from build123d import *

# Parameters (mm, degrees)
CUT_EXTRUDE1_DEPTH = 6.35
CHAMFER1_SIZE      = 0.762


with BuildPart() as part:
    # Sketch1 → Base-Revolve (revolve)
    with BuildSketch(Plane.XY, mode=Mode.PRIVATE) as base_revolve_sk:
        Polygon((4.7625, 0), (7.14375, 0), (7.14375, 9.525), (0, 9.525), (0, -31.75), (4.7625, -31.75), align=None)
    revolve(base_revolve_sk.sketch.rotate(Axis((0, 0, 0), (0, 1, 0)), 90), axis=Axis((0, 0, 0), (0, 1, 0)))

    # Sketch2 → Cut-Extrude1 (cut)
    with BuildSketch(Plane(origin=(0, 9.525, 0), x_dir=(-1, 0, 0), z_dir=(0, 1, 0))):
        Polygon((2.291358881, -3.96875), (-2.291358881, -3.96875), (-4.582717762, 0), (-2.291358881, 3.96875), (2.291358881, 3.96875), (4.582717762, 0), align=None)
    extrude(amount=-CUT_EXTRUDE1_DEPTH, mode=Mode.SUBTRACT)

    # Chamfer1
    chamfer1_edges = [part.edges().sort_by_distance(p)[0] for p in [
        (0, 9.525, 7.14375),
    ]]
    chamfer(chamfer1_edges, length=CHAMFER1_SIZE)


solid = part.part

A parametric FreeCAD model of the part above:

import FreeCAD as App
import Part
import Sketcher
Q = App.Units.Quantity


def edges_at(feature, points):
    """Names of the edges that pass closest to the given points."""
    edges = feature.Shape.Edges
    near = lambda p: min(range(len(edges)), key=lambda i: edges[i].distToShape(Part.Vertex(*p))[0])
    return sorted({f"Edge{near(p) + 1}" for p in points})

doc = App.newDocument("Part")
body = doc.addObject("PartDesign::Body", "Body")

# Sketch on XY plane
sketch1 = body.newObject("Sketcher::SketchObject", "Sketch")
sketch1.AttachmentSupport = (doc.getObject("XY_Plane"), [""])
sketch1.MapMode = "FlatFace"
sketch1.addGeometry(Part.LineSegment(App.Vector(4.8, 0, 0), App.Vector(7.1, 0, 0)), False)
sketch1.addGeometry(Part.LineSegment(App.Vector(7.1, 0, 0), App.Vector(7.1, 9.5, 0)), False)
sketch1.addGeometry(Part.LineSegment(App.Vector(7.1, 9.5, 0), App.Vector(0, 9.5, 0)), False)
sketch1.addGeometry(Part.LineSegment(App.Vector(0, 9.5, 0), App.Vector(0, -31.8, 0)), False)
sketch1.addGeometry(Part.LineSegment(App.Vector(0, -31.8, 0), App.Vector(4.8, -31.8, 0)), False)
sketch1.addGeometry(Part.LineSegment(App.Vector(4.8, -31.8, 0), App.Vector(4.8, 0, 0)), False)
sketch1.addConstraint(Sketcher.Constraint("Coincident", 0, 2, 1, 1))
sketch1.addConstraint(Sketcher.Constraint("Coincident", 1, 2, 2, 1))
sketch1.addConstraint(Sketcher.Constraint("Coincident", 2, 2, 3, 1))
sketch1.addConstraint(Sketcher.Constraint("Coincident", 3, 2, 4, 1))
sketch1.addConstraint(Sketcher.Constraint("Coincident", 4, 2, 5, 1))
sketch1.addConstraint(Sketcher.Constraint("Coincident", 5, 2, 0, 1))
sketch1.addConstraint(Sketcher.Constraint("Horizontal", 0))
sketch1.addConstraint(Sketcher.Constraint("Vertical", 1))
sketch1.addConstraint(Sketcher.Constraint("Horizontal", 2))
sketch1.addConstraint(Sketcher.Constraint("Vertical", 3))
sketch1.addConstraint(Sketcher.Constraint("Horizontal", 4))
sketch1.addConstraint(Sketcher.Constraint("Vertical", 5))
sketch1.addConstraint(Sketcher.Constraint("PointOnObject", 0, 2, -1))
sketch1.addConstraint(Sketcher.Constraint("PointOnObject", 2, 2, -2))
sketch1.addConstraint(Sketcher.Constraint("DistanceY", 5, 1, 5, 2, Q("1.25 in")))
sketch1.addConstraint(Sketcher.Constraint("DistanceX", 0, 1, 0, 2, Q("0.09375 in")))
sketch1.addConstraint(Sketcher.Constraint("DistanceX", 2, 2, 2, 1, Q("0.28125 in")))
sketch1.addConstraint(Sketcher.Constraint("DistanceY", 1, 1, 1, 2, Q("0.375 in")))
revolution = body.newObject("PartDesign::Revolution", "Revolution")
revolution.Profile = sketch1
revolution.ReferenceAxis = (sketch1, ["V_Axis"])
revolution.Angle = 360

# Sketch on XZ plane
sketch2 = body.newObject("Sketcher::SketchObject", "Sketch001")
sketch2.AttachmentSupport = (doc.getObject("XZ_Plane"), [""])
sketch2.MapMode = "FlatFace"
sketch2.AttachmentOffset = App.Placement(App.Vector(0, 0, -0.375 * 25.4), App.Rotation())
sketch2.addGeometry(Part.LineSegment(App.Vector(2.3, -4, 0), App.Vector(-2.3, -4, 0)), False)
sketch2.addGeometry(Part.LineSegment(App.Vector(-2.3, -4, 0), App.Vector(-4.6, 0, 0)), False)
sketch2.addGeometry(Part.LineSegment(App.Vector(-4.6, 0, 0), App.Vector(-2.3, 4, 0)), False)
sketch2.addGeometry(Part.LineSegment(App.Vector(-2.3, 4, 0), App.Vector(2.3, 4, 0)), False)
sketch2.addGeometry(Part.LineSegment(App.Vector(2.3, 4, 0), App.Vector(4.6, 0, 0)), False)
sketch2.addGeometry(Part.LineSegment(App.Vector(4.6, 0, 0), App.Vector(2.3, -4, 0)), False)
sketch2.addConstraint(Sketcher.Constraint("Coincident", 0, 2, 1, 1))
sketch2.addConstraint(Sketcher.Constraint("Coincident", 1, 2, 2, 1))
sketch2.addConstraint(Sketcher.Constraint("Coincident", 2, 2, 3, 1))
sketch2.addConstraint(Sketcher.Constraint("Coincident", 3, 2, 4, 1))
sketch2.addConstraint(Sketcher.Constraint("Coincident", 4, 2, 5, 1))
sketch2.addConstraint(Sketcher.Constraint("Coincident", 5, 2, 0, 1))
sketch2.addConstraint(Sketcher.Constraint("Horizontal", 0))
sketch2.addConstraint(Sketcher.Constraint("Horizontal", 3))
sketch2.addConstraint(Sketcher.Constraint("Symmetric", 0, 2, 3, 2, -1, 1))
sketch2.addConstraint(Sketcher.Constraint("Symmetric", 1, 2, 4, 2, -1, 1))
sketch2.addConstraint(Sketcher.Constraint("PointOnObject", 1, 2, -1))
sketch2.addConstraint(Sketcher.Constraint("Parallel", 2, 5))
sketch2.addConstraint(Sketcher.Constraint("Vertical", 0, 2, 2, 2))
sketch2.addConstraint(Sketcher.Constraint("Angle", 1, Q("120 deg")))
sketch2.addConstraint(Sketcher.Constraint("DistanceY", 0, 2, -1, 1, Q("0.15625 in")))
sketch2.addConstraint(Sketcher.Constraint("DistanceX", 0, 2, 0, 1, Q("4.582718 mm")))
pocket1 = body.newObject("PartDesign::Pocket", "Pocket")
pocket1.Profile = sketch2
pocket1.Length = Q("0.25 in")
pocket1.Reversed = True
doc.recompute()

chamfer = body.newObject("PartDesign::Chamfer", "Chamfer")
chamfer.Base = (pocket1, edges_at(pocket1, [(0, 9.525, 7.144)]))
chamfer.Size = Q("0.03 in")

doc.recompute()
